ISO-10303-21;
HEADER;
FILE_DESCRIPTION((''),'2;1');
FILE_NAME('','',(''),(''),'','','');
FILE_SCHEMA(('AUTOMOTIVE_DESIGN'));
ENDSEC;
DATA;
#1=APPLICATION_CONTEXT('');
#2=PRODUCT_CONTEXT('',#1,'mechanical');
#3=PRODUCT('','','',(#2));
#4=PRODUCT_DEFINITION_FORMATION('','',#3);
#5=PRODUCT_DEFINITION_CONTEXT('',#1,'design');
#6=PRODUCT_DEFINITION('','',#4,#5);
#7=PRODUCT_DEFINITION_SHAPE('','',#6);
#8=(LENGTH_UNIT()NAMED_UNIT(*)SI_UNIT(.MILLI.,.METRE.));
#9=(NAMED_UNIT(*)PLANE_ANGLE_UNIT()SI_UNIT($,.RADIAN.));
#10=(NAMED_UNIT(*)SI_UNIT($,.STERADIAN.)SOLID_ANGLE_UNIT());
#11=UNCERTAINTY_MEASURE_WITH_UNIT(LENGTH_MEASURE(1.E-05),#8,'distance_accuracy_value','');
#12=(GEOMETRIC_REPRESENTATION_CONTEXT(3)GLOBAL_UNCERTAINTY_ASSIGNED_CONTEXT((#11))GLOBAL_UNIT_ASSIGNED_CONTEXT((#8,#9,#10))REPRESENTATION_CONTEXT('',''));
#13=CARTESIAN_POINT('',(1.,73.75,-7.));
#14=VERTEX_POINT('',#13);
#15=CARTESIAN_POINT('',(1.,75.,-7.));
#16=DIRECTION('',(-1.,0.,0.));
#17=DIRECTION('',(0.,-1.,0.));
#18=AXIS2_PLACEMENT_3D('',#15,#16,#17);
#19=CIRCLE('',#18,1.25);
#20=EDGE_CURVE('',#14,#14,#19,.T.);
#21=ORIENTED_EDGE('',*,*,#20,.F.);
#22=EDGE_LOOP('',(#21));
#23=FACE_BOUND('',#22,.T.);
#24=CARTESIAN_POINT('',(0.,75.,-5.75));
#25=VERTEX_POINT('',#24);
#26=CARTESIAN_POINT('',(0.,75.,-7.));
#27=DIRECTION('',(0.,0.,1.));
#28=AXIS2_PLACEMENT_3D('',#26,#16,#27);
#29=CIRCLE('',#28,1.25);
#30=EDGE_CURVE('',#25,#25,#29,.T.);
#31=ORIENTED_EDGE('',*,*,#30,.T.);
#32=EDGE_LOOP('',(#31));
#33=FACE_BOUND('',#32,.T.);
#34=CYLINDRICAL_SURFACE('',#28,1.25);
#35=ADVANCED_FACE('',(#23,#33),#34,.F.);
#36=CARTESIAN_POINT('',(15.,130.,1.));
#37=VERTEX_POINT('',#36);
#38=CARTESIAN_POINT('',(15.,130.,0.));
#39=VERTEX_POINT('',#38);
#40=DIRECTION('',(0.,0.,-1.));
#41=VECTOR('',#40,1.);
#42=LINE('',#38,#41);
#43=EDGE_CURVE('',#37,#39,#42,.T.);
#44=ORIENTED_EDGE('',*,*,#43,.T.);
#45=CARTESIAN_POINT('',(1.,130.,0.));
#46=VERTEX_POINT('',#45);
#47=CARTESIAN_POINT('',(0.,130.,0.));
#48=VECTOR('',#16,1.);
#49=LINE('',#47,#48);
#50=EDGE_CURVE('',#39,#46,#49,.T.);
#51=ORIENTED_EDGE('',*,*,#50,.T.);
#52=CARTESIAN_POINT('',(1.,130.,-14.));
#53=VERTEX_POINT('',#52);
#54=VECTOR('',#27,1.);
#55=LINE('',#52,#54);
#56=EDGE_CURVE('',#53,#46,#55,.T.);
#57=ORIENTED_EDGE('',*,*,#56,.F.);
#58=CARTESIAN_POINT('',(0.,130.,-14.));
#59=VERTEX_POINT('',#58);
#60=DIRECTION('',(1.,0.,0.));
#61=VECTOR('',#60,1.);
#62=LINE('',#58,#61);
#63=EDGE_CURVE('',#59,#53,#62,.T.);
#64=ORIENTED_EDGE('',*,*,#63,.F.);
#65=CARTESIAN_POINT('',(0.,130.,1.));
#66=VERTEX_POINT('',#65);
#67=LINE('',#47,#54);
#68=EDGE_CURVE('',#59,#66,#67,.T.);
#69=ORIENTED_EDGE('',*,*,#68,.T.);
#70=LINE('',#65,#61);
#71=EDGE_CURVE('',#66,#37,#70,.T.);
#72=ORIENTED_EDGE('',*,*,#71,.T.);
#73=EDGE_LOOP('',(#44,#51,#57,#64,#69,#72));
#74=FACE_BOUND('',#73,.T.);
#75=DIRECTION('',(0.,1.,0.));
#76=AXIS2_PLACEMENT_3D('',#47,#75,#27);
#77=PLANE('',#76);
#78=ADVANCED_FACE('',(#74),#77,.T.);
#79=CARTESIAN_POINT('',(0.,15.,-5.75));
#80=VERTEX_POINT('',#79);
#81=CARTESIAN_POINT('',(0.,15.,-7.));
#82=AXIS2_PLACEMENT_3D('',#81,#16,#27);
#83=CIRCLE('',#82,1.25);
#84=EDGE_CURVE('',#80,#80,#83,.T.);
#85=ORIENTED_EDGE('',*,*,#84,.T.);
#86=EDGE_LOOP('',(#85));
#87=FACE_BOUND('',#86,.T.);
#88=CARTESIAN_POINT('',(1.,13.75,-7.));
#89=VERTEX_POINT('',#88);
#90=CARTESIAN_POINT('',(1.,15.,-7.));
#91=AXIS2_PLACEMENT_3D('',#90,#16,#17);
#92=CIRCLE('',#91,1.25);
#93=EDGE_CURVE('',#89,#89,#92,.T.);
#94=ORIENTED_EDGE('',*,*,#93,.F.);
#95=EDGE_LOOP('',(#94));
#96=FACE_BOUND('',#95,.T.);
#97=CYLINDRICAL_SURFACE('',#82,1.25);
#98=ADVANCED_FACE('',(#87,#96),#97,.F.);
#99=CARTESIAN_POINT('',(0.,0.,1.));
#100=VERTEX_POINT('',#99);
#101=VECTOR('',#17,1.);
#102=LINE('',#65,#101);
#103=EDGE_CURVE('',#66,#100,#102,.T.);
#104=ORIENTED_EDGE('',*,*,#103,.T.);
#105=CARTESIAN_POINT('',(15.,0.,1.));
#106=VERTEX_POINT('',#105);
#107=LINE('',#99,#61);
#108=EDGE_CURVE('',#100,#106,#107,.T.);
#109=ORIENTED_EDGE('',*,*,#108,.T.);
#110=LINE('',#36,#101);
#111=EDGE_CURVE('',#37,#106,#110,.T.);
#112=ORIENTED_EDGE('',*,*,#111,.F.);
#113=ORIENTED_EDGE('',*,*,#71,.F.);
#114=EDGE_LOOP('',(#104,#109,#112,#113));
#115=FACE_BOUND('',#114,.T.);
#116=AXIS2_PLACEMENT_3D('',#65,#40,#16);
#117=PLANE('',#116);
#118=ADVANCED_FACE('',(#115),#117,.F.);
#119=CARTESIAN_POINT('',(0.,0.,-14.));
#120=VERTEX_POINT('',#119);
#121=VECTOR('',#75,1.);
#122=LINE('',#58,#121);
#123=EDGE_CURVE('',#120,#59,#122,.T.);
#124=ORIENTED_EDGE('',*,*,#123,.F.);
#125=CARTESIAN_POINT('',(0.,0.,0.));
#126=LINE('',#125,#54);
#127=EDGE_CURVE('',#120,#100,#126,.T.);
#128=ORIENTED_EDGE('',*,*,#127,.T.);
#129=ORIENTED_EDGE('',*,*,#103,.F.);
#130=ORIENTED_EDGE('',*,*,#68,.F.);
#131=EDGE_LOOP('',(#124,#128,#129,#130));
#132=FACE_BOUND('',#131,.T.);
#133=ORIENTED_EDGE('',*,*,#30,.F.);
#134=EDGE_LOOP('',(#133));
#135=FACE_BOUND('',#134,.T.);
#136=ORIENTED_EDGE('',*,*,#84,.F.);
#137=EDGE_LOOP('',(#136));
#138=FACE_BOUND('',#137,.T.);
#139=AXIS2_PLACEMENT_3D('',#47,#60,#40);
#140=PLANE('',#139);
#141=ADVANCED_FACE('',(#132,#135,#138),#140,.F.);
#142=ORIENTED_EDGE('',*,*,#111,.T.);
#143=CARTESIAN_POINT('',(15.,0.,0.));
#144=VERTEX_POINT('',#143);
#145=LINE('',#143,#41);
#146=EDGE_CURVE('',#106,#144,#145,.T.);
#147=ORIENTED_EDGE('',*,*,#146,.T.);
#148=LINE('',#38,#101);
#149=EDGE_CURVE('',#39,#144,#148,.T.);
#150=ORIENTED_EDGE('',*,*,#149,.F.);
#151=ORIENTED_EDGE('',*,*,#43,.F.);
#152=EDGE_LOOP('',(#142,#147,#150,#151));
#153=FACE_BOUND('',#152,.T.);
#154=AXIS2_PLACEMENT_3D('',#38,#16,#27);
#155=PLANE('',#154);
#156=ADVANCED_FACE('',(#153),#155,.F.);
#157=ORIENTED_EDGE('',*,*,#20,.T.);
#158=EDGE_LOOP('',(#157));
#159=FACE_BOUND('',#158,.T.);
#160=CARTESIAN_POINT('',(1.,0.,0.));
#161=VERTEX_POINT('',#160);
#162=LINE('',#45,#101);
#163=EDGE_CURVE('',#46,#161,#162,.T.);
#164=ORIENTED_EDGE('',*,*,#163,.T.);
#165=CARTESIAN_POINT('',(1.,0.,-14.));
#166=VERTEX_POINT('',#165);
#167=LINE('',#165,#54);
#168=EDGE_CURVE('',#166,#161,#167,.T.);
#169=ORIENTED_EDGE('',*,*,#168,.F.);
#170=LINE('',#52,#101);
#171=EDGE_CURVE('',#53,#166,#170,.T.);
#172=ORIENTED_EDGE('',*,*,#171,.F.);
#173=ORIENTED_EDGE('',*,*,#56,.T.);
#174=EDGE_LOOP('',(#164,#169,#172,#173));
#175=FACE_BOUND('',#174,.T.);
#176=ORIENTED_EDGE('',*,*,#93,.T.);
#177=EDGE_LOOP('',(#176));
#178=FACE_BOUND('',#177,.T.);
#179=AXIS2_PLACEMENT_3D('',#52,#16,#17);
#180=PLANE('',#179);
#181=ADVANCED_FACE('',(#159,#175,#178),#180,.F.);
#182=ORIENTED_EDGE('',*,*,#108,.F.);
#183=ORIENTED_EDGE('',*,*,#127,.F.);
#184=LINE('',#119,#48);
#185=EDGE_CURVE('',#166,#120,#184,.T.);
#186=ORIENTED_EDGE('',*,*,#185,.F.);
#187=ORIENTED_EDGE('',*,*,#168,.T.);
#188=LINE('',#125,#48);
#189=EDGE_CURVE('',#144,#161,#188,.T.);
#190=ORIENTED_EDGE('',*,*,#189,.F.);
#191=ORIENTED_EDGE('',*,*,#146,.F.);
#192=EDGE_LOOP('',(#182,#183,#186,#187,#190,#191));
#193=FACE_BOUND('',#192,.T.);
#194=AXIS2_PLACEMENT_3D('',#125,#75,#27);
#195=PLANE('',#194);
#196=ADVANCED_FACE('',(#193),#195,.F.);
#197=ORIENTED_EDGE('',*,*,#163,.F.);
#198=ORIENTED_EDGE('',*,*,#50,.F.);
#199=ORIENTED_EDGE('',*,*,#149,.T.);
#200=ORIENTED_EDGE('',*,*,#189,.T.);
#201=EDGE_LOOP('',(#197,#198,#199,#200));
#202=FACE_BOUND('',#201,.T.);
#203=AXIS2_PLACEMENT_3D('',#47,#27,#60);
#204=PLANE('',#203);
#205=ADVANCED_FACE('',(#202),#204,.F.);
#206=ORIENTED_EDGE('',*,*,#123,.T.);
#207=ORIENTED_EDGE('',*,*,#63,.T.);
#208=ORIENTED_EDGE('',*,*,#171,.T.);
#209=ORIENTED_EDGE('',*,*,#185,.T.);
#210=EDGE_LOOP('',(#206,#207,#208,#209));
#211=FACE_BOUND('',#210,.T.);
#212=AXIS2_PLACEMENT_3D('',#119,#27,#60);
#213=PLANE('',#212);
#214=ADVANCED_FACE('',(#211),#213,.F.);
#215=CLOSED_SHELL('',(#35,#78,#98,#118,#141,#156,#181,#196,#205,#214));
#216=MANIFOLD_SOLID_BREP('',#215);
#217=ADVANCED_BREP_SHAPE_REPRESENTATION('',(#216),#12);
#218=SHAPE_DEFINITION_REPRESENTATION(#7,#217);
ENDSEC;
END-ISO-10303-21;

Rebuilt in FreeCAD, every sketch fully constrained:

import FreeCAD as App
import Part
import Sketcher
from FreeCAD import Vector
Q = App.Units.Quantity

doc = App.newDocument("Part")
body = doc.addObject("PartDesign::Body", "Body")

sketch1 = body.newObject("Sketcher::SketchObject", "Sketch")
sketch1.AttachmentSupport = (doc.getObject("XZ_Plane"), [""])
sketch1.MapMode = "FlatFace"
sketch1.addGeometry([
    Part.LineSegment(Vector(0, 0, 0), Vector(0, 1, 0)),
    Part.LineSegment(Vector(0, 1, 0), Vector(15, 1, 0)),
    Part.LineSegment(Vector(15, 1, 0), Vector(15, 0, 0)),
    Part.LineSegment(Vector(15, 0, 0), Vector(0, 0, 0)),
], False)
sketch1.addConstraint([
    Sketcher.Constraint("Coincident", 0, 2, 1, 1),
    Sketcher.Constraint("Coincident", 1, 2, 2, 1),
    Sketcher.Constraint("Coincident", 2, 2, 3, 1),
    Sketcher.Constraint("Coincident", 3, 2, 0, 1),
    Sketcher.Constraint("Vertical", 0),
    Sketcher.Constraint("Horizontal", 1),
    Sketcher.Constraint("Vertical", 2),
    Sketcher.Constraint("Horizontal", 3),
    Sketcher.Constraint("Coincident", 3, 2, -1, 1),
    Sketcher.Constraint("DistanceX", 1, 1, 1, 2, Q("15 mm")),
    Sketcher.Constraint("DistanceY", 0, 1, 0, 2, Q("1 mm")),
])
pad1 = body.newObject("PartDesign::Pad", "Pad")
pad1.Profile = sketch1
pad1.Length = 130
pad1.Reversed = True

sketch2 = body.newObject("Sketcher::SketchObject", "Sketch001")
sketch2.AttachmentSupport = (doc.getObject("XY_Plane"), [""])
sketch2.MapMode = "FlatFace"
sketch2.addGeometry([
    Part.LineSegment(Vector(1, 130, 0), Vector(1, 0, 0)),
    Part.LineSegment(Vector(1, 0, 0), Vector(0, 0, 0)),
    Part.LineSegment(Vector(0, 0, 0), Vector(0, 130, 0)),
    Part.LineSegment(Vector(0, 130, 0), Vector(1, 130, 0)),
], False)
sketch2.addConstraint([
    Sketcher.Constraint("Coincident", 0, 2, 1, 1),
    Sketcher.Constraint("Coincident", 1, 2, 2, 1),
    Sketcher.Constraint("Coincident", 2, 2, 3, 1),
    Sketcher.Constraint("Coincident", 3, 2, 0, 1),
    Sketcher.Constraint("Vertical", 0),
    Sketcher.Constraint("Horizontal", 1),
    Sketcher.Constraint("Vertical", 2),
    Sketcher.Constraint("Horizontal", 3),
    Sketcher.Constraint("Coincident", 1, 2, -1, 1),
    Sketcher.Constraint("DistanceX", 1, 2, 1, 1, Q("1 mm")),
    Sketcher.Constraint("DistanceY", 0, 2, 0, 1, Q("130 mm")),
])
pad2 = body.newObject("PartDesign::Pad", "Pad001")
pad2.Profile = sketch2
pad2.Length = 14
pad2.Reversed = True

sketch3 = body.newObject("Sketcher::SketchObject", "Sketch002")
sketch3.AttachmentSupport = (doc.getObject("YZ_Plane"), [""])
sketch3.MapMode = "FlatFace"
sketch3.addGeometry([
    Part.Circle(Vector(15, -7, 0), Vector(0, 0, 1), 1.2),
    Part.Circle(Vector(75, -7, 0), Vector(0, 0, 1), 1.2),
], False)
sketch3.addConstraint([
    Sketcher.Constraint("Equal", 0, 1),
    Sketcher.Constraint("Horizontal", 0, 3, 1, 3),
    Sketcher.Constraint("Diameter", 0, Q("2.5 mm")),
    Sketcher.Constraint("DistanceX", -1, 1, 0, 3, Q("15 mm")),
    Sketcher.Constraint("DistanceY", 0, 3, -1, 1, Q("7 mm")),
    Sketcher.Constraint("DistanceX", -1, 1, 1, 3, Q("75 mm")),
])
doc.recompute()
hole = body.newObject("PartDesign::Hole", "Hole")
hole.Profile = sketch3
hole.ThreadType = "None"
hole.Diameter = 2.5
hole.DepthType = "ThroughAll"
hole.Reversed = True

doc.recompute()
